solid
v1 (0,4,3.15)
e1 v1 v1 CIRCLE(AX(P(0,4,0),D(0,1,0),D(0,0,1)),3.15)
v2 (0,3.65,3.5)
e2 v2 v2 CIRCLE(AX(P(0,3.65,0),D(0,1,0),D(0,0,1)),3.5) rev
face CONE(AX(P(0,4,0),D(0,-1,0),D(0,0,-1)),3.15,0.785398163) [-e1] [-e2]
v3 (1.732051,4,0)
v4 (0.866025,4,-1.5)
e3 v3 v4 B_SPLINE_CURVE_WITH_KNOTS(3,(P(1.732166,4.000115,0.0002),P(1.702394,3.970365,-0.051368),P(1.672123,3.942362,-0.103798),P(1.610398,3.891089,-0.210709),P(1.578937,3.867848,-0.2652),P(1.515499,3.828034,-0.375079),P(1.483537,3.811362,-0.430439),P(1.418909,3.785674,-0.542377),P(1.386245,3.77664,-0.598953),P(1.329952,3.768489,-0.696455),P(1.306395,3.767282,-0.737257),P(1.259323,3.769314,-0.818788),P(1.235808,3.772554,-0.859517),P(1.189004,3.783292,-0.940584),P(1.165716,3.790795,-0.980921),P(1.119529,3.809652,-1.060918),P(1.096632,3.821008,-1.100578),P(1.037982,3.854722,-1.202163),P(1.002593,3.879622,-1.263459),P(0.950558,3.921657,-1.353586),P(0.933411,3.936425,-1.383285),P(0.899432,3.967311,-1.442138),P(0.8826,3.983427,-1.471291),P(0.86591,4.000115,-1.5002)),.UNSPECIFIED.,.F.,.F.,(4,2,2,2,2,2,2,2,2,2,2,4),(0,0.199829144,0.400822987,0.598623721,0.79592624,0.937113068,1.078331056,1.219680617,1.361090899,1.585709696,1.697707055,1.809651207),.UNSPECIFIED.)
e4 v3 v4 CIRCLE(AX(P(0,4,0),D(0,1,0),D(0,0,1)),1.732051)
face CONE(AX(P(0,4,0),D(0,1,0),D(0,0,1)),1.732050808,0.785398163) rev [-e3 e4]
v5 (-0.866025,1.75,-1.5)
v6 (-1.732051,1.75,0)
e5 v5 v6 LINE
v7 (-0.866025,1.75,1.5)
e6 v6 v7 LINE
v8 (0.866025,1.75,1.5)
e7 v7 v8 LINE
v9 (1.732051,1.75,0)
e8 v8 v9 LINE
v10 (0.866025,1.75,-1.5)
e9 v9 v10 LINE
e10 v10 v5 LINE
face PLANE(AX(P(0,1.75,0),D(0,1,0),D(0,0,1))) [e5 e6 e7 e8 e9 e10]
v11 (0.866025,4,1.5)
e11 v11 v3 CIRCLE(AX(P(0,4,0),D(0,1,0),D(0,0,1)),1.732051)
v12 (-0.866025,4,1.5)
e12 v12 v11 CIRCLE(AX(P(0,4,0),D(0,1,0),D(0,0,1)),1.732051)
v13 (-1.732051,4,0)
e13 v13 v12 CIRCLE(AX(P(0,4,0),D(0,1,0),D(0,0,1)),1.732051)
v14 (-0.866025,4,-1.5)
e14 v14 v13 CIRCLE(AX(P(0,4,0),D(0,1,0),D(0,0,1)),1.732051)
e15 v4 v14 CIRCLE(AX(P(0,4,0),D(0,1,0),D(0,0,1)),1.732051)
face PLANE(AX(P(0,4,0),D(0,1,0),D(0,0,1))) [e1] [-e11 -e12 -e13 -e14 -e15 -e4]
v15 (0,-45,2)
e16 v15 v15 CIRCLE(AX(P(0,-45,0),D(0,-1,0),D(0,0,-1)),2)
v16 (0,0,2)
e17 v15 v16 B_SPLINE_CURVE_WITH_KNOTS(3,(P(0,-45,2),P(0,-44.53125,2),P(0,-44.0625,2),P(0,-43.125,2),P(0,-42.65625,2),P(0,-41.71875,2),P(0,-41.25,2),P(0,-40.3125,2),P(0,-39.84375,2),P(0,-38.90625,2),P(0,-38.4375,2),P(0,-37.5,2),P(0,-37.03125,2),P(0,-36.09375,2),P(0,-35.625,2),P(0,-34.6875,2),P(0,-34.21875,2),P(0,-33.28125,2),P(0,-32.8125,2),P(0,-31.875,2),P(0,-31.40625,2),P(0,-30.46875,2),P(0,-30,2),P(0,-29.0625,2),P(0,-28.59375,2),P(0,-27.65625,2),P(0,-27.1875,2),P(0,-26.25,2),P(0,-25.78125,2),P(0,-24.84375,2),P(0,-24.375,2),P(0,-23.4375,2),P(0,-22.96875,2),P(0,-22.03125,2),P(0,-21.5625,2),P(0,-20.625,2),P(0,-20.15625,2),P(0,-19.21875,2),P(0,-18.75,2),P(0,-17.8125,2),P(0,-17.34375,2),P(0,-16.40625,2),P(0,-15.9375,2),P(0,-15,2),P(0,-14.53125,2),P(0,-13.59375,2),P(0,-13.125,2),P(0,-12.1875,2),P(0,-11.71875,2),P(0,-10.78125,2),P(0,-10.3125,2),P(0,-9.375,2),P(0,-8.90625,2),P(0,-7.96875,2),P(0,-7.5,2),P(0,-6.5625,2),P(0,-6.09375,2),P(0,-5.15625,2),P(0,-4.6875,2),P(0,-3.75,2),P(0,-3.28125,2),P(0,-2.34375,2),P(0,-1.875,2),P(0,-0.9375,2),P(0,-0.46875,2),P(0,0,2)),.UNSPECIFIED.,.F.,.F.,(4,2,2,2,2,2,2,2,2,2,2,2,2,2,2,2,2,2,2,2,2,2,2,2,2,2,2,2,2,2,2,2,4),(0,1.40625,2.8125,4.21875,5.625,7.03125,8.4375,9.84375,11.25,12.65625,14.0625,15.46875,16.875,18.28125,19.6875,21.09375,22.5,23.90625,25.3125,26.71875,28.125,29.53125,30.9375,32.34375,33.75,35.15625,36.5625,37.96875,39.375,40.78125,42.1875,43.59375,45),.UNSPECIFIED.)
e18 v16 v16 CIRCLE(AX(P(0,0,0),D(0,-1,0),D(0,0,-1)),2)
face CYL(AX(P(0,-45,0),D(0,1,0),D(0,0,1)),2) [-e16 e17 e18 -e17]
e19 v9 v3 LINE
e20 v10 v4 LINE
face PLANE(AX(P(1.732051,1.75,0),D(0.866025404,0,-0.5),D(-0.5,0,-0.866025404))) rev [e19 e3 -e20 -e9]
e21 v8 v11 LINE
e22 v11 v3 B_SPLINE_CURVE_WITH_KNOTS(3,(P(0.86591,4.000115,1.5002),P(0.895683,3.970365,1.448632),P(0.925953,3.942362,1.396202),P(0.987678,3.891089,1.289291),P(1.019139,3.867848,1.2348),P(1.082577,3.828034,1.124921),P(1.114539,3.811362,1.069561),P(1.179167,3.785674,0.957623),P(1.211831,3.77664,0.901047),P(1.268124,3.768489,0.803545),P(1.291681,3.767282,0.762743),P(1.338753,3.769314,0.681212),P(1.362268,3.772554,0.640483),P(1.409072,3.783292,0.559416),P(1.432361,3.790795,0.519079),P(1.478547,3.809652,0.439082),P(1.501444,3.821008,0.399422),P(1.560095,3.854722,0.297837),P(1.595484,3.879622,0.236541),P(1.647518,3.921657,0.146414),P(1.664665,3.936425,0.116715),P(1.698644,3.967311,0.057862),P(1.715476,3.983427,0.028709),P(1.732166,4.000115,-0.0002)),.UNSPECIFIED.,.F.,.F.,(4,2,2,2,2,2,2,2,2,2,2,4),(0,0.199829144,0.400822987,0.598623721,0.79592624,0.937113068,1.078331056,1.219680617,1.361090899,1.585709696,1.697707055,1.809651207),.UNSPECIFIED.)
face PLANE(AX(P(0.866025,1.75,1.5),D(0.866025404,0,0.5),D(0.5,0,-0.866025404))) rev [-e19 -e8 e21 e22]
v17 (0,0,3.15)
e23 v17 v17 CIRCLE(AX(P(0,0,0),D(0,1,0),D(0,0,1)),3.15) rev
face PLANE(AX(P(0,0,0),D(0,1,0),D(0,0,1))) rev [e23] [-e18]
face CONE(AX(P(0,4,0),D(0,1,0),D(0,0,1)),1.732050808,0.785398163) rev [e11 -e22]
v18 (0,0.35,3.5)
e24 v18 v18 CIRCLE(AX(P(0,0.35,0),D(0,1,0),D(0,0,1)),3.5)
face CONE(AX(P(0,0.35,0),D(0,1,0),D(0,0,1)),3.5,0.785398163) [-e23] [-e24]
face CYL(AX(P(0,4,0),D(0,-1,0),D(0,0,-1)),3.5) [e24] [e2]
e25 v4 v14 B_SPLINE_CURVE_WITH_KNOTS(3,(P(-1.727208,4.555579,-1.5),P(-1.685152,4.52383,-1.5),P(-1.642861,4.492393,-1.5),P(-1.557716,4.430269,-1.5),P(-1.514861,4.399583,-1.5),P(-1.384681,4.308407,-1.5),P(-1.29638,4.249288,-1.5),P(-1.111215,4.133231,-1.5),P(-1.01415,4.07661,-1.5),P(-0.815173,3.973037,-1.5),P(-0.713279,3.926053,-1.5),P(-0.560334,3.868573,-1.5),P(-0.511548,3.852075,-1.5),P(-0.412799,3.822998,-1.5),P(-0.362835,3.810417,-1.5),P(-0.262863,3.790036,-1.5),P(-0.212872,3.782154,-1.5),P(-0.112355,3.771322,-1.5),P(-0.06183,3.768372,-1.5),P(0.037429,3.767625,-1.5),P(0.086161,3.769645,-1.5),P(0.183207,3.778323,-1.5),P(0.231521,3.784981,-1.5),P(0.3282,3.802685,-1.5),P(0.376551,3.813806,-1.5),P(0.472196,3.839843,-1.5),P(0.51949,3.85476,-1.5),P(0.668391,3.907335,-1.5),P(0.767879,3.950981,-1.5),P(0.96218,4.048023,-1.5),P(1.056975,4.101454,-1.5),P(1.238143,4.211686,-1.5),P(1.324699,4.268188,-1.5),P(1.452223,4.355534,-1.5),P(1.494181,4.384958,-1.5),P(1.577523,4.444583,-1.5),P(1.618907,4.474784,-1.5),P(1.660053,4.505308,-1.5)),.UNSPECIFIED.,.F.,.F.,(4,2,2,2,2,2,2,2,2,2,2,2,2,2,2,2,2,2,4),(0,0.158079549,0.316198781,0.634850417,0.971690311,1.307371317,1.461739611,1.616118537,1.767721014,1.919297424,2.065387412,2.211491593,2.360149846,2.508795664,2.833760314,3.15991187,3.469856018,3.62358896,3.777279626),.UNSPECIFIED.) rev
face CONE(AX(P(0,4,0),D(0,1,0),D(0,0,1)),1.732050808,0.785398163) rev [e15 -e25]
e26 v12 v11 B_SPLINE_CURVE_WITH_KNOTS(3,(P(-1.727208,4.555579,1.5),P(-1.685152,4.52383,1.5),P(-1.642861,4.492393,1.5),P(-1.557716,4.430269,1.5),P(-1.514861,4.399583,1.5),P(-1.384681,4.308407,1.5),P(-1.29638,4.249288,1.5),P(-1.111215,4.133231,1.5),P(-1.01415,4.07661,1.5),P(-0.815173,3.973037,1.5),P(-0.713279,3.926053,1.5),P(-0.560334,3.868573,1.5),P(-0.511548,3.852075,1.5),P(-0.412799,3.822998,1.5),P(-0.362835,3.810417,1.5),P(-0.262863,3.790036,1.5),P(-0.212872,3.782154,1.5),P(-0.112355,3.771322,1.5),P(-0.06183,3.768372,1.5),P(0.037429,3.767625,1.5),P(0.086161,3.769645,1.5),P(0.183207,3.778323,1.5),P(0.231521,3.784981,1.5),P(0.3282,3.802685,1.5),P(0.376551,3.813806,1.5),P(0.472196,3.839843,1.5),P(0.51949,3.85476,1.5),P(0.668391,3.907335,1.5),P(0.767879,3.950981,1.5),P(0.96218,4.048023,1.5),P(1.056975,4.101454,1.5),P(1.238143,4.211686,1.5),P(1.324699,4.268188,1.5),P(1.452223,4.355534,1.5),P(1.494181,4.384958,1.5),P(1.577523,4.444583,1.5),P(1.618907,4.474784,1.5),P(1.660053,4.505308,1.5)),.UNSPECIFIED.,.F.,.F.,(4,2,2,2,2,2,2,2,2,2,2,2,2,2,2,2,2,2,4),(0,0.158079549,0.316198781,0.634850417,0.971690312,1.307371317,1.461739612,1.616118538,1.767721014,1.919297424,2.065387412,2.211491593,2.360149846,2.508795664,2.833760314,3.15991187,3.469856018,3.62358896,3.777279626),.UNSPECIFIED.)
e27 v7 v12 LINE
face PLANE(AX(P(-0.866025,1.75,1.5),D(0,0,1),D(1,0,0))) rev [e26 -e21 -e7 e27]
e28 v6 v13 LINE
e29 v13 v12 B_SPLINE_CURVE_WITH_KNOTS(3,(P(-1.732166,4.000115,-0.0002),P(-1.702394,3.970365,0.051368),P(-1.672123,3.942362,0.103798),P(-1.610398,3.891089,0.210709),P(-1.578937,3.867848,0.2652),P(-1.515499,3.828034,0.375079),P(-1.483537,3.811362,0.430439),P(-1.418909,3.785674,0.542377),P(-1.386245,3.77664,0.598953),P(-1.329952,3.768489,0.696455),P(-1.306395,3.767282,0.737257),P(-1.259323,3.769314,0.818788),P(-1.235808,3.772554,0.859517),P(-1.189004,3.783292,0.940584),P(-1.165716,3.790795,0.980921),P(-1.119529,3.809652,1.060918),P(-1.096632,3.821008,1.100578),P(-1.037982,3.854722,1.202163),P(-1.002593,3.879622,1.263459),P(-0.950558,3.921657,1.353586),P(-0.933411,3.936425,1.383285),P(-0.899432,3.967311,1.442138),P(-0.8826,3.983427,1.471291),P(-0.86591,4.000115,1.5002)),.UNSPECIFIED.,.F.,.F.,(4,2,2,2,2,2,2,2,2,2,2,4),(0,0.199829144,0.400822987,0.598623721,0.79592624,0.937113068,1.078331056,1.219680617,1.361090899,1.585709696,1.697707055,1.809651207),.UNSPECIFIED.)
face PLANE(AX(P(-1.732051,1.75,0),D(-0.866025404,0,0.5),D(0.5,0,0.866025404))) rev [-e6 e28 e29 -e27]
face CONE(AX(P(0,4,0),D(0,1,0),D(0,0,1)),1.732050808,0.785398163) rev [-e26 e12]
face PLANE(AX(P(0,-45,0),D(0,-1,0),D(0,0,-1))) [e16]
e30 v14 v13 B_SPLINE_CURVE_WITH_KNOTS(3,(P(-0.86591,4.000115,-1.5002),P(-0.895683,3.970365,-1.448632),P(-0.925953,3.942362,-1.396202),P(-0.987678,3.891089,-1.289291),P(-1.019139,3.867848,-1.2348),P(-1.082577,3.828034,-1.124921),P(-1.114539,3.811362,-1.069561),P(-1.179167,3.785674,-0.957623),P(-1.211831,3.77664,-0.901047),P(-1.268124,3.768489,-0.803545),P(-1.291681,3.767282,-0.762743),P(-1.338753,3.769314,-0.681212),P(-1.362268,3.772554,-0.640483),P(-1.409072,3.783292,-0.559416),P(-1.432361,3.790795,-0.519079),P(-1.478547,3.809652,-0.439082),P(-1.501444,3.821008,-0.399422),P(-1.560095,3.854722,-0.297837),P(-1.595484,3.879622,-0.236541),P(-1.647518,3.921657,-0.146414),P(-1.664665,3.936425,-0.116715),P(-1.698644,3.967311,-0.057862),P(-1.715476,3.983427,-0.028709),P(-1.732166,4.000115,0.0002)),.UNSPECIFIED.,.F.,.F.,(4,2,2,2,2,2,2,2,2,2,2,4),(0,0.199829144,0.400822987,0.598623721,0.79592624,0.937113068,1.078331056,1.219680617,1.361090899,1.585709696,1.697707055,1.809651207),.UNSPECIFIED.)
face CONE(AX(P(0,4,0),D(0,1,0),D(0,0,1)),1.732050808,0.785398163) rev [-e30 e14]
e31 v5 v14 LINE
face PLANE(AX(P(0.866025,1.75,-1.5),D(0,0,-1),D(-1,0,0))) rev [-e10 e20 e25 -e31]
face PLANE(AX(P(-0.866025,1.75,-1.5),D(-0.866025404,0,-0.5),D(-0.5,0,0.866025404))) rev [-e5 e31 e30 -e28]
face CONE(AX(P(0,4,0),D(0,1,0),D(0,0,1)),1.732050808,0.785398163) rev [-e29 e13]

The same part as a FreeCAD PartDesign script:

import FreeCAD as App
import Part
import Sketcher
Q = App.Units.Quantity


def edges_at(feature, points):
    """Names of the edges that pass closest to the given points."""
    edges = feature.Shape.Edges
    near = lambda p: min(range(len(edges)), key=lambda i: edges[i].distToShape(Part.Vertex(*p))[0])
    return sorted({f"Edge{near(p) + 1}" for p in points})


def add_polygon(sketch, points):
    """Adds a closed chain of lines whose ends are joined by coincident constraints."""
    first, n = sketch.GeometryCount, len(points)
    for a, b in zip(points, points[1:] + points[:1]):
        sketch.addGeometry(Part.LineSegment(App.Vector(*a, 0), App.Vector(*b, 0)), False)
    for i in range(n):
        sketch.addConstraint(Sketcher.Constraint("Coincident", first + i, 2, first + (i + 1) % n, 1))

doc = App.newDocument("Part")
body = doc.addObject("PartDesign::Body", "Body")

sketch1 = body.newObject("Sketcher::SketchObject", "Sketch")
sketch1.AttachmentSupport = (doc.getObject("XZ_Plane"), [""])
sketch1.MapMode = "FlatFace"
sketch1.addGeometry(Part.Circle(App.Vector(0, 0, 0), App.Vector(0, 0, 1), 3.5), False)
sketch1.addConstraint([
    Sketcher.Constraint("Coincident", 0, 3, -1, 1),
    Sketcher.Constraint("Diameter", 0, Q("7 mm")),
])
pad1 = body.newObject("PartDesign::Pad", "Pad")
pad1.Profile = sketch1
pad1.Length = 4
pad1.Reversed = True

sketch2 = body.newObject("Sketcher::SketchObject", "Sketch001")
sketch2.AttachmentSupport = (doc.getObject("XZ_Plane"), [""])
sketch2.MapMode = "FlatFace"
sketch2.AttachmentOffset = App.Placement(App.Vector(0, 0, -4), App.Rotation())
add_polygon(sketch2, [(0.9, -1.5), (-0.9, -1.5), (-1.7, 0), (-0.9, 1.5), (0.9, 1.5), (1.7, 0)])
sketch2.addConstraint([
    Sketcher.Constraint("Horizontal", 0),
    Sketcher.Constraint("Horizontal", 3),
    Sketcher.Constraint("Symmetric", 0, 2, 3, 2, -1, 1),
    Sketcher.Constraint("Symmetric", 1, 2, 4, 2, -1, 1),
    Sketcher.Constraint("PointOnObject", 1, 2, -1),
    Sketcher.Constraint("Parallel", 2, 5),
    Sketcher.Constraint("Vertical", 0, 2, 2, 2),
    Sketcher.Constraint("Angle", 1, Q("120 deg")),
    Sketcher.Constraint("DistanceY", 0, 2, 2, 2, Q("3 mm")),
    Sketcher.Constraint("DistanceX", 0, 2, 0, 1, Q("1.732051 mm")),
])
pocket1 = body.newObject("PartDesign::Pocket", "Pocket")
pocket1.Profile = sketch2
pocket1.Length = 2.25
pocket1.Reversed = True

sketch3 = body.newObject("Sketcher::SketchObject", "Sketch002")
sketch3.AttachmentSupport = (doc.getObject("YZ_Plane"), [""])
sketch3.MapMode = "FlatFace"
add_polygon(sketch3, [(4, 0), (4, 1.7), (2.3, 0)])
sketch3.addConstraint([
    Sketcher.Constraint("Vertical", 0),
    Sketcher.Constraint("Horizontal", 2),
    Sketcher.Constraint("PointOnObject", 1, 2, -1),
    Sketcher.Constraint("Equal", 2, 0),
    Sketcher.Constraint("DistanceX", -1, 1, 0, 2, Q("4 mm")),
    Sketcher.Constraint("DistanceX", 2, 1, 2, 2, Q("1.732051 mm")),
])
groove = body.newObject("PartDesign::Groove", "Groove")
groove.Profile = sketch3
groove.ReferenceAxis = (sketch3, ["H_Axis"])
groove.Angle = 360
doc.recompute()

chamfer = body.newObject("PartDesign::Chamfer", "Chamfer")
chamfer.Base = (groove, edges_at(groove, [(0, 0, -3.5), (0, 4, -3.5)]))
chamfer.Size = 0.35

sketch4 = body.newObject("Sketcher::SketchObject", "Sketch003")
sketch4.AttachmentSupport = (doc.getObject("XZ_Plane"), [""])
sketch4.MapMode = "FlatFace"
sketch4.addGeometry(Part.Circle(App.Vector(0, 0, 0), App.Vector(0, 0, 1), 2), False)
sketch4.addConstraint([
    Sketcher.Constraint("Coincident", 0, 3, -1, 1),
    Sketcher.Constraint("Diameter", 0, Q("4 mm")),
])
pad2 = body.newObject("PartDesign::Pad", "Pad001")
pad2.Profile = sketch4
pad2.Length = 45

doc.recompute()
